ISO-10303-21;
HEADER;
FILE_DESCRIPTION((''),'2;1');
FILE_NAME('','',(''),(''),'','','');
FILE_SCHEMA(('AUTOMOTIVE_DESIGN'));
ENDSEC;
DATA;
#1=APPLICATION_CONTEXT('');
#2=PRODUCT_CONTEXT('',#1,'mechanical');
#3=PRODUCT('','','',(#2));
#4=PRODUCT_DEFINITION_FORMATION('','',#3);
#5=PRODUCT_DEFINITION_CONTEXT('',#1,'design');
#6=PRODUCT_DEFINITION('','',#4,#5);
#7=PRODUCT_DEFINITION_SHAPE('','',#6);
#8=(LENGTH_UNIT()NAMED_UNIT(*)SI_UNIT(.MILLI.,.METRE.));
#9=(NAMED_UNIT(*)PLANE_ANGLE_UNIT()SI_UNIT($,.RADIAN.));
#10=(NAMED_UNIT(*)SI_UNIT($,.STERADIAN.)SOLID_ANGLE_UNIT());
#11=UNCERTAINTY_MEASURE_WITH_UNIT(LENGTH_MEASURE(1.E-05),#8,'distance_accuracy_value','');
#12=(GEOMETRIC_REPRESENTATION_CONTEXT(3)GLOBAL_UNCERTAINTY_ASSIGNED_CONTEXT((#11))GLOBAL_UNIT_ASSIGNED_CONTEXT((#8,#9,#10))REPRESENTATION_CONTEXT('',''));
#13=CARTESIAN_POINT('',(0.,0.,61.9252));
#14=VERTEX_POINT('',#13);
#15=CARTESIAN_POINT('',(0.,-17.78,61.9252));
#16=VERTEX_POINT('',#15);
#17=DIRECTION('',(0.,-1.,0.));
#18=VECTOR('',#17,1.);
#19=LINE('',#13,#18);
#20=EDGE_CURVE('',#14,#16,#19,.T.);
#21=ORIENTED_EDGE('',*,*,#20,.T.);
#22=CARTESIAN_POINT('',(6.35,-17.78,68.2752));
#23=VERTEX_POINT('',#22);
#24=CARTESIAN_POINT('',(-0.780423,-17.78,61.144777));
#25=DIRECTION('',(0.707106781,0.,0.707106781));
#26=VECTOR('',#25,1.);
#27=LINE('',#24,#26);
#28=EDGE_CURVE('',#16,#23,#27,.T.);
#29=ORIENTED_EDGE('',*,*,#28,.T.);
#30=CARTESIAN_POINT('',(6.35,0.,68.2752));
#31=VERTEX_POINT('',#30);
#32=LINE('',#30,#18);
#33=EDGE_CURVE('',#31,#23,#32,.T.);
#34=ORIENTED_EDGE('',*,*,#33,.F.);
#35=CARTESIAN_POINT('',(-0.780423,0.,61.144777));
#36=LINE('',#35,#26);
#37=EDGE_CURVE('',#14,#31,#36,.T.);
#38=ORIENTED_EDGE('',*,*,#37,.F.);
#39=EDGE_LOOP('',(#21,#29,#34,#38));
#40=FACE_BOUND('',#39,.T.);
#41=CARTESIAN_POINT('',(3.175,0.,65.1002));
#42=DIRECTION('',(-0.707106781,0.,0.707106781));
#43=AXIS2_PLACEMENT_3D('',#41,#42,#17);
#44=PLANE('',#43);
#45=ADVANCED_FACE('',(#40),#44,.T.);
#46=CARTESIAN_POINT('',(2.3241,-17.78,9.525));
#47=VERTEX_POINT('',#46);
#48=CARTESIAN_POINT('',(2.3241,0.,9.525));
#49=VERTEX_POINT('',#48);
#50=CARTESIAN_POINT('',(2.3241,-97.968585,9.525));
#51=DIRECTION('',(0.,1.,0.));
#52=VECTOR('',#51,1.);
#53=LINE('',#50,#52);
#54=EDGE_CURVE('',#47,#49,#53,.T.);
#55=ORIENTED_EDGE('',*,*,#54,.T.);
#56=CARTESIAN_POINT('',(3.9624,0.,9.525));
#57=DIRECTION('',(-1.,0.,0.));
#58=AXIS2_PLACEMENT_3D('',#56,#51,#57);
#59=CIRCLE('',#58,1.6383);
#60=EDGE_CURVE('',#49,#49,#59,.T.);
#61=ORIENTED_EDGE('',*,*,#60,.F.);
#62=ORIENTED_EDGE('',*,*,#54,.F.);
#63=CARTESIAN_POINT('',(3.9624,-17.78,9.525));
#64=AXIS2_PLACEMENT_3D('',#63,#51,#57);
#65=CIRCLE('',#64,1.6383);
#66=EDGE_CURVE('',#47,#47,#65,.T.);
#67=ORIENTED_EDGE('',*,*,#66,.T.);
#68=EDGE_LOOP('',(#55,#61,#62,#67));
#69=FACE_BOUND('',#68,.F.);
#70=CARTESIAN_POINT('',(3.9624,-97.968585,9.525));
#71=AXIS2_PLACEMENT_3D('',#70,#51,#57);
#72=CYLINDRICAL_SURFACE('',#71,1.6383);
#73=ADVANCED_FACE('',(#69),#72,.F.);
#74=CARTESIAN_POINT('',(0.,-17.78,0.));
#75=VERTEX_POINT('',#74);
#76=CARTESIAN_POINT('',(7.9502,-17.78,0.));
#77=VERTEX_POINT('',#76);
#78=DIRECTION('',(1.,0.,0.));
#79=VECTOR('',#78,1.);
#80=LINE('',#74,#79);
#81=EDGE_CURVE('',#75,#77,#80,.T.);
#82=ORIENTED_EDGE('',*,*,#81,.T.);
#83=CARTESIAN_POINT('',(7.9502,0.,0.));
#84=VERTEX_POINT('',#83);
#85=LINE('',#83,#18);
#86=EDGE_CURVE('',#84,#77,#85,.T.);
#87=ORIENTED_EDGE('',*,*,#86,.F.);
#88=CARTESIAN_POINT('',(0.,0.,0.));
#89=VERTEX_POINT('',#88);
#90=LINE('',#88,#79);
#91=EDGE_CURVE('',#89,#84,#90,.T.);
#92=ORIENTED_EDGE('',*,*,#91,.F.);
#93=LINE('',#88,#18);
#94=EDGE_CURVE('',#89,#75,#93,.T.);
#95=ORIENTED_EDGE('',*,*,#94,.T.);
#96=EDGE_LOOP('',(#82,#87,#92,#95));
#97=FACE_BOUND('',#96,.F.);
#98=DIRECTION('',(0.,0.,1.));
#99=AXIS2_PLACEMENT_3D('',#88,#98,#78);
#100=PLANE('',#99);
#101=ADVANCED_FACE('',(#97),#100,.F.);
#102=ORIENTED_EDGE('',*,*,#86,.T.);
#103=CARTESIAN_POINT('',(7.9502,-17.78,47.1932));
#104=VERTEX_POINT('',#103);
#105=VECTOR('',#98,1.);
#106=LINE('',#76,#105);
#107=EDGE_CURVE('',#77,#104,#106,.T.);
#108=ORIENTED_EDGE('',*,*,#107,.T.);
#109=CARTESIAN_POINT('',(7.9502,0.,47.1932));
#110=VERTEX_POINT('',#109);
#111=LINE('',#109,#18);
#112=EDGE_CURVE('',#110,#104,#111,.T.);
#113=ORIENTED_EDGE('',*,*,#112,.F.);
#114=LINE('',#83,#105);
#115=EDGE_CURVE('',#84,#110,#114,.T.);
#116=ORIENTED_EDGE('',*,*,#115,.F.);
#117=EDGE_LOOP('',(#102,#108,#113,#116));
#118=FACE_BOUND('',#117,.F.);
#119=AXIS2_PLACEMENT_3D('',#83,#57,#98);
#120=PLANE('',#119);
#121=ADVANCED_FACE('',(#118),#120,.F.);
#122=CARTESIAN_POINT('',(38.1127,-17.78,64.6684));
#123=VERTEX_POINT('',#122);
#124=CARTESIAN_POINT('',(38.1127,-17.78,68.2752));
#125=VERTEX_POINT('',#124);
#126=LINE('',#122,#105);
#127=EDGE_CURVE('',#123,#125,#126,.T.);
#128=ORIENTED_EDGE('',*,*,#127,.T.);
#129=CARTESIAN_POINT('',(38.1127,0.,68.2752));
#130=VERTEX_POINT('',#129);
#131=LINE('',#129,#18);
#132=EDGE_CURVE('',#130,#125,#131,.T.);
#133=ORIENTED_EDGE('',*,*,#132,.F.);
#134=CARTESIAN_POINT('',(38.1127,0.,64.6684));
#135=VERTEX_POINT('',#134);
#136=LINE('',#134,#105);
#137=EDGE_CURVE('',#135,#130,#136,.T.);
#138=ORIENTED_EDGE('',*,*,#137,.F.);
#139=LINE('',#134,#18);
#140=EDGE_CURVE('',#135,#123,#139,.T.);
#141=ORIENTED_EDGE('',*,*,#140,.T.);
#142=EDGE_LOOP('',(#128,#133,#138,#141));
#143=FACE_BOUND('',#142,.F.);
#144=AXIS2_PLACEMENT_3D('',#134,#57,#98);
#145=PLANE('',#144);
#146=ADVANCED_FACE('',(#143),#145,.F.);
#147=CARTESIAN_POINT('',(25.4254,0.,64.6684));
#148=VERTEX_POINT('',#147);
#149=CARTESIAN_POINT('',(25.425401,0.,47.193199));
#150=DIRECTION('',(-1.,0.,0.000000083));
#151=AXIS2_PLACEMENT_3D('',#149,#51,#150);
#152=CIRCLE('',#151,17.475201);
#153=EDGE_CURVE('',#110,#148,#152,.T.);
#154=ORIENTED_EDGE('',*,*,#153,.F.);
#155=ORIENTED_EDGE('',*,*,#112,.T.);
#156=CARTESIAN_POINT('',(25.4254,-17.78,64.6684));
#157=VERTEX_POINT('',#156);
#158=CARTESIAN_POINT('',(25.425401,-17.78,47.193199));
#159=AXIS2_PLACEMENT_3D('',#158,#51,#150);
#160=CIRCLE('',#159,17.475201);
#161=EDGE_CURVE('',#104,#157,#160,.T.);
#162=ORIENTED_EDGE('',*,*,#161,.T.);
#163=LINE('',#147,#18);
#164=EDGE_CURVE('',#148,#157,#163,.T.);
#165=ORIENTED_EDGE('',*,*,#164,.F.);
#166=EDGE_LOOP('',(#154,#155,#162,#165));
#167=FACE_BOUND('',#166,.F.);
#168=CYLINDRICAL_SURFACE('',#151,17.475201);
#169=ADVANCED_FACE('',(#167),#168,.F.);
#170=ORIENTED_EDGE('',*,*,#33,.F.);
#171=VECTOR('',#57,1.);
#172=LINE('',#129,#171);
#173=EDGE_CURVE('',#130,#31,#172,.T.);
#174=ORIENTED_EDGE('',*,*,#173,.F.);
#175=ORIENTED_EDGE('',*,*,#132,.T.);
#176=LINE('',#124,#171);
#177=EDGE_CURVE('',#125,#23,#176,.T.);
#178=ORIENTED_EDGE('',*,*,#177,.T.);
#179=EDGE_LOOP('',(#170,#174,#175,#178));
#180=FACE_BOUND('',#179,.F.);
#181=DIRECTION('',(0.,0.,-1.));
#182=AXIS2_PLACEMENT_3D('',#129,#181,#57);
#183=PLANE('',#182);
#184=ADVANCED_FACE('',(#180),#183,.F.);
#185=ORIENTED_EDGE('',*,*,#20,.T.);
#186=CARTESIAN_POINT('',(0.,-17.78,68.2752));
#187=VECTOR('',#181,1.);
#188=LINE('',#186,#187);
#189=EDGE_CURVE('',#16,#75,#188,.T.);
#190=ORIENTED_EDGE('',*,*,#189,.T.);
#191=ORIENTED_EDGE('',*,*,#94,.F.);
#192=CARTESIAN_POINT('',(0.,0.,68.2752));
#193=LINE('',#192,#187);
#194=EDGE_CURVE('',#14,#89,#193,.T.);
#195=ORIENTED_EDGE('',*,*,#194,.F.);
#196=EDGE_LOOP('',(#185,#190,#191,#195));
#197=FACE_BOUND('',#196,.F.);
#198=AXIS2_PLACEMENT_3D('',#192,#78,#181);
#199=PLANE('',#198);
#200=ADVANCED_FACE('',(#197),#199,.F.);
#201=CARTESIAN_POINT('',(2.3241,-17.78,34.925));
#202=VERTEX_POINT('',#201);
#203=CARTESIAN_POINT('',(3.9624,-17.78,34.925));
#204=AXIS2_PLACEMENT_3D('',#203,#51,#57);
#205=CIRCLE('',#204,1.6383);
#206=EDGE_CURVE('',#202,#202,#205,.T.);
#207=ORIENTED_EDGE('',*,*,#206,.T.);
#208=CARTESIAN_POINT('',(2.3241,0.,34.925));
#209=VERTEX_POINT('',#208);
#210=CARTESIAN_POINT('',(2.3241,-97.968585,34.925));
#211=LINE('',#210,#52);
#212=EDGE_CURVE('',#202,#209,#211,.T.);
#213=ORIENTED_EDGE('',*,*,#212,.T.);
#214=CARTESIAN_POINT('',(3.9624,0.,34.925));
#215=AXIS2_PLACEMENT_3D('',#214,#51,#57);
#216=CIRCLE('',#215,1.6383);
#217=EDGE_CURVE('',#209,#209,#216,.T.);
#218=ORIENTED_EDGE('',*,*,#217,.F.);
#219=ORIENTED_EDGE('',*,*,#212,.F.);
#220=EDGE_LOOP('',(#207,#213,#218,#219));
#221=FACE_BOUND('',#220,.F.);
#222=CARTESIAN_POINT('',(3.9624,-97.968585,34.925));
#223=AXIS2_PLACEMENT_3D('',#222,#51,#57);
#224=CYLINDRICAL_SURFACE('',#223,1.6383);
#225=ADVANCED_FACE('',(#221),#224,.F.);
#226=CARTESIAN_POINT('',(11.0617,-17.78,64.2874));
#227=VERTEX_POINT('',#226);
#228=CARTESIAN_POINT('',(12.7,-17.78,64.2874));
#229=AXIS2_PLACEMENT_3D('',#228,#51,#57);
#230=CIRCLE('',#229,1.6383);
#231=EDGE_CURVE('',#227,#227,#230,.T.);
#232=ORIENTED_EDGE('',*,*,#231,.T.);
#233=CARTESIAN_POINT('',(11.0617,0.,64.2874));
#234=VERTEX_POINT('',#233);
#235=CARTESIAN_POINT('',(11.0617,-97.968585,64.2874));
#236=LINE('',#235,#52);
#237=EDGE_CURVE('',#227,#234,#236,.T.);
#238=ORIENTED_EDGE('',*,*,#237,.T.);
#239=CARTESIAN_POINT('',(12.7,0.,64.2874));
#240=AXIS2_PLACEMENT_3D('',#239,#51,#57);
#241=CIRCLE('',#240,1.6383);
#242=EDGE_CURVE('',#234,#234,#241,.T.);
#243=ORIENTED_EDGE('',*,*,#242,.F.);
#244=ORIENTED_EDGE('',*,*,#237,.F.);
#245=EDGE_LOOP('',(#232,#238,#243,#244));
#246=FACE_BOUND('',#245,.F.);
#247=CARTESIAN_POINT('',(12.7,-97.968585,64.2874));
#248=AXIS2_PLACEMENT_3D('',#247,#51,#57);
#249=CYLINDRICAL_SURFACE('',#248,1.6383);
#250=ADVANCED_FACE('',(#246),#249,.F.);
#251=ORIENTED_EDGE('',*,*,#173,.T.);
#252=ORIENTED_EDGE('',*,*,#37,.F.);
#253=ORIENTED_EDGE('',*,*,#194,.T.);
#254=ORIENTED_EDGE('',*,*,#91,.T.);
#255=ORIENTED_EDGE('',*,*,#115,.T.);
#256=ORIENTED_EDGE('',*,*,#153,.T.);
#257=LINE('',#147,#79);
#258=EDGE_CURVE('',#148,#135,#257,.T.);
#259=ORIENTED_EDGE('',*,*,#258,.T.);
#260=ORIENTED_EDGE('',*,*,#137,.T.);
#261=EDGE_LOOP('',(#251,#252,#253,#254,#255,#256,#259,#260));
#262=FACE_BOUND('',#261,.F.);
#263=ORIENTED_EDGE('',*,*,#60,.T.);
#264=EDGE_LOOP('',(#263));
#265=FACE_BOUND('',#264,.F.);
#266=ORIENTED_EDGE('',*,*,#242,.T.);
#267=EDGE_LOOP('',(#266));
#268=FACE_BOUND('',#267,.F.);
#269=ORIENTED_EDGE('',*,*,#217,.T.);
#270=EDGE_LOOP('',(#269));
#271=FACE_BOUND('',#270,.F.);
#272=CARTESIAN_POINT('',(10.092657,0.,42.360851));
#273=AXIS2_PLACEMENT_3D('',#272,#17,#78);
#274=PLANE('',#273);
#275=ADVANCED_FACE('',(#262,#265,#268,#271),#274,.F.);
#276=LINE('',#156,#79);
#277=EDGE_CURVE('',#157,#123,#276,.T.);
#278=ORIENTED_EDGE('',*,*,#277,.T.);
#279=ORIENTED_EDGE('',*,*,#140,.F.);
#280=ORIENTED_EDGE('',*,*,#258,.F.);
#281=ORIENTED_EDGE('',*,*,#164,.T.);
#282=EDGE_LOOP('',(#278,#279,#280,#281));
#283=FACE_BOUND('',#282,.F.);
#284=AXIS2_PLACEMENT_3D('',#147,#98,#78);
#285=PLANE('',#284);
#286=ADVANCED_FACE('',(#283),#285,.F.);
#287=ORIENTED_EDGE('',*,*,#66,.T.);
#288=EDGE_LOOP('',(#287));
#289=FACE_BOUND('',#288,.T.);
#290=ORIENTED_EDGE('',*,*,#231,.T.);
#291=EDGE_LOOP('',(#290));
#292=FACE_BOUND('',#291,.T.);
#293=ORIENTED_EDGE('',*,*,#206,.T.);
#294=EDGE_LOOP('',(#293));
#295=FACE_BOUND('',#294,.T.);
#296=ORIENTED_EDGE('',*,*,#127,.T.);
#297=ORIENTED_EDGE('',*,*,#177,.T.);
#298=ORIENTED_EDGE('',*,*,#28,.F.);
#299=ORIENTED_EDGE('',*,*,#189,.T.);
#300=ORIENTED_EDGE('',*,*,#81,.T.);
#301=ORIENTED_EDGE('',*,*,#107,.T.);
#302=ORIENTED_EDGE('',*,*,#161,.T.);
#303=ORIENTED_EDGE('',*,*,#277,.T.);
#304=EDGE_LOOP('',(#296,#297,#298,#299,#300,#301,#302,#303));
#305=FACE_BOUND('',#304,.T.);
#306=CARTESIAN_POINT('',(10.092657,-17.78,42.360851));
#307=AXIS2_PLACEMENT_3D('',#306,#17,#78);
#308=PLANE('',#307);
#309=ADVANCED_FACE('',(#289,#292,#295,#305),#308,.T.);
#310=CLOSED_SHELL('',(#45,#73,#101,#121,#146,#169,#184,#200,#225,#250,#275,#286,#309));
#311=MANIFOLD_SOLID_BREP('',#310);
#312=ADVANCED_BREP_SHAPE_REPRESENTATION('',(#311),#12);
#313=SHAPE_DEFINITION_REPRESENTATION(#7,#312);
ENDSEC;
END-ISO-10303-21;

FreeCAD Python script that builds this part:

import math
import FreeCAD as App
import Part
import Sketcher
from FreeCAD import Vector
Q = App.Units.Quantity


def edges_at(feature, points):
    """Names of the edges that pass closest to the given points."""
    edges = feature.Shape.Edges
    near = lambda p: min(range(len(edges)), key=lambda i: edges[i].distToShape(Part.Vertex(*p))[0])
    return sorted({f"Edge{near(p) + 1}" for p in points})

doc = App.newDocument("Part")
params = doc.addObject("Spreadsheet::Sheet", "Params")
for row, (alias, value) in enumerate([
    ("sketch1_radius", "0.6880001 in"),
    ("sketch1_width", "0.313 in"),
    ("sketch1_height", "2.688 in"),
    ("sketch1_height2", "1.858 in"),
    ("pad1_length", "0.7 in"),
    ("chamfer_size", "0.25 in"),
    ("sketch2_diameter", "0.129 in"),
    ("hole_diameter", "0.129 in"),
], start=1):
    params.set(f"A{row}", alias)
    params.set(f"B{row}", "=" + value)
    params.setAlias(f"B{row}", alias)

body = doc.addObject("PartDesign::Body", "Body")

# Sketch on XZ plane
sketch1 = body.newObject("Sketcher::SketchObject", "Sketch")
sketch1.AttachmentSupport = (doc.getObject("XZ_Plane"), [""])
sketch1.MapMode = "FlatFace"
sketch1.addGeometry([
    Part.LineSegment(Vector(0, 68.3, 0), Vector(0, 0, 0)),  # 0
    Part.LineSegment(Vector(0, 0, 0), Vector(8, 0, 0)),  # 1
    Part.LineSegment(Vector(8, 0, 0), Vector(8, 47.2, 0)),  # 2
    Part.ArcOfCircle(Part.Circle(Vector(25.4, 47.2, 0), Vector(0, 0, 1), 17.5), math.radians(90), math.radians(180)),  # 3
    Part.LineSegment(Vector(25.4, 64.7, 0), Vector(38.1, 64.7, 0)),  # 4
    Part.LineSegment(Vector(38.1, 64.7, 0), Vector(38.1, 68.3, 0)),  # 5
    Part.LineSegment(Vector(38.1, 68.3, 0), Vector(0, 68.3, 0)),  # 6
], False)
sketch1.addConstraint([
    Sketcher.Constraint("Coincident", 0, 2, 1, 1),
    Sketcher.Constraint("Coincident", 1, 2, 2, 1),
    Sketcher.Constraint("Tangent", 2, 2, 3, 2),
    Sketcher.Constraint("Tangent", 3, 1, 4, 1),
    Sketcher.Constraint("Coincident", 4, 2, 5, 1),
    Sketcher.Constraint("Coincident", 5, 2, 6, 1),
    Sketcher.Constraint("Coincident", 6, 2, 0, 1),
    Sketcher.Constraint("Vertical", 0),
    Sketcher.Constraint("Horizontal", 1),
    Sketcher.Constraint("Vertical", 2),
    Sketcher.Constraint("Horizontal", 4),
    Sketcher.Constraint("Vertical", 5),
    Sketcher.Constraint("Horizontal", 6),
    Sketcher.Constraint("Coincident", 0, 2, -1, 1),
    Sketcher.Constraint("Radius", 3, Q("0.6880001 in")),
    Sketcher.Constraint("DistanceX", 1, 1, 1, 2, Q("0.313 in")),
    Sketcher.Constraint("DistanceY", 0, 2, 0, 1, Q("2.688 in")),
    Sketcher.Constraint("DistanceY", 2, 1, 2, 2, Q("1.858 in")),
    Sketcher.Constraint("DistanceX", 4, 1, 4, 2, Q("0.4995 in")),
])
sketch1.setExpression("Constraints[14]", "Params.sketch1_radius")
sketch1.setExpression("Constraints[15]", "Params.sketch1_width")
sketch1.setExpression("Constraints[16]", "Params.sketch1_height")
sketch1.setExpression("Constraints[17]", "Params.sketch1_height2")
pad1 = body.newObject("PartDesign::Pad", "Pad")
pad1.Profile = sketch1
pad1.setExpression("Length", "Params.pad1_length")
doc.recompute()

chamfer = body.newObject("PartDesign::Chamfer", "Chamfer")
chamfer.Base = (pad1, edges_at(pad1, [(0, -8.89, 68.275)]))
chamfer.setExpression("Size", "Params.chamfer_size")

# Sketch on XZ plane
sketch2 = body.newObject("Sketcher::SketchObject", "Sketch001")
sketch2.AttachmentSupport = (doc.getObject("XZ_Plane"), [""])
sketch2.MapMode = "FlatFace"
sketch2.AttachmentOffset = App.Placement(Vector(0, 0, 0.7 * 25.4), App.Rotation())
sketch2.addGeometry([
    Part.Circle(Vector(12.7, 64.3, 0), Vector(0, 0, 1), 1.6),
    Part.Circle(Vector(4, 9.5, 0), Vector(0, 0, 1), 1.6),
    Part.Circle(Vector(4, 34.9, 0), Vector(0, 0, 1), 1.6),
], False)
sketch2.addConstraint([
    Sketcher.Constraint("Equal", 0, 1),
    Sketcher.Constraint("Equal", 1, 2),
    Sketcher.Constraint("Vertical", 1, 3, 2, 3),
    Sketcher.Constraint("Diameter", 0, Q("0.129 in")),
    Sketcher.Constraint("DistanceY", 1, 3, 2, 3, Q("1 in")),
    Sketcher.Constraint("DistanceX", -1, 1, 0, 3, Q("0.5 in")),
    Sketcher.Constraint("DistanceY", -1, 1, 0, 3, Q("2.531 in")),
    Sketcher.Constraint("DistanceX", -1, 1, 1, 3, Q("0.156 in")),
    Sketcher.Constraint("DistanceY", -1, 1, 1, 3, Q("0.375 in")),
])
sketch2.setExpression("Constraints[3]", "Params.sketch2_diameter")
doc.recompute()
hole = body.newObject("PartDesign::Hole", "Hole")
hole.Profile = sketch2
hole.ThreadType = "None"
hole.setExpression("Diameter", "Params.hole_diameter")
hole.DepthType = "ThroughAll"

doc.recompute()
